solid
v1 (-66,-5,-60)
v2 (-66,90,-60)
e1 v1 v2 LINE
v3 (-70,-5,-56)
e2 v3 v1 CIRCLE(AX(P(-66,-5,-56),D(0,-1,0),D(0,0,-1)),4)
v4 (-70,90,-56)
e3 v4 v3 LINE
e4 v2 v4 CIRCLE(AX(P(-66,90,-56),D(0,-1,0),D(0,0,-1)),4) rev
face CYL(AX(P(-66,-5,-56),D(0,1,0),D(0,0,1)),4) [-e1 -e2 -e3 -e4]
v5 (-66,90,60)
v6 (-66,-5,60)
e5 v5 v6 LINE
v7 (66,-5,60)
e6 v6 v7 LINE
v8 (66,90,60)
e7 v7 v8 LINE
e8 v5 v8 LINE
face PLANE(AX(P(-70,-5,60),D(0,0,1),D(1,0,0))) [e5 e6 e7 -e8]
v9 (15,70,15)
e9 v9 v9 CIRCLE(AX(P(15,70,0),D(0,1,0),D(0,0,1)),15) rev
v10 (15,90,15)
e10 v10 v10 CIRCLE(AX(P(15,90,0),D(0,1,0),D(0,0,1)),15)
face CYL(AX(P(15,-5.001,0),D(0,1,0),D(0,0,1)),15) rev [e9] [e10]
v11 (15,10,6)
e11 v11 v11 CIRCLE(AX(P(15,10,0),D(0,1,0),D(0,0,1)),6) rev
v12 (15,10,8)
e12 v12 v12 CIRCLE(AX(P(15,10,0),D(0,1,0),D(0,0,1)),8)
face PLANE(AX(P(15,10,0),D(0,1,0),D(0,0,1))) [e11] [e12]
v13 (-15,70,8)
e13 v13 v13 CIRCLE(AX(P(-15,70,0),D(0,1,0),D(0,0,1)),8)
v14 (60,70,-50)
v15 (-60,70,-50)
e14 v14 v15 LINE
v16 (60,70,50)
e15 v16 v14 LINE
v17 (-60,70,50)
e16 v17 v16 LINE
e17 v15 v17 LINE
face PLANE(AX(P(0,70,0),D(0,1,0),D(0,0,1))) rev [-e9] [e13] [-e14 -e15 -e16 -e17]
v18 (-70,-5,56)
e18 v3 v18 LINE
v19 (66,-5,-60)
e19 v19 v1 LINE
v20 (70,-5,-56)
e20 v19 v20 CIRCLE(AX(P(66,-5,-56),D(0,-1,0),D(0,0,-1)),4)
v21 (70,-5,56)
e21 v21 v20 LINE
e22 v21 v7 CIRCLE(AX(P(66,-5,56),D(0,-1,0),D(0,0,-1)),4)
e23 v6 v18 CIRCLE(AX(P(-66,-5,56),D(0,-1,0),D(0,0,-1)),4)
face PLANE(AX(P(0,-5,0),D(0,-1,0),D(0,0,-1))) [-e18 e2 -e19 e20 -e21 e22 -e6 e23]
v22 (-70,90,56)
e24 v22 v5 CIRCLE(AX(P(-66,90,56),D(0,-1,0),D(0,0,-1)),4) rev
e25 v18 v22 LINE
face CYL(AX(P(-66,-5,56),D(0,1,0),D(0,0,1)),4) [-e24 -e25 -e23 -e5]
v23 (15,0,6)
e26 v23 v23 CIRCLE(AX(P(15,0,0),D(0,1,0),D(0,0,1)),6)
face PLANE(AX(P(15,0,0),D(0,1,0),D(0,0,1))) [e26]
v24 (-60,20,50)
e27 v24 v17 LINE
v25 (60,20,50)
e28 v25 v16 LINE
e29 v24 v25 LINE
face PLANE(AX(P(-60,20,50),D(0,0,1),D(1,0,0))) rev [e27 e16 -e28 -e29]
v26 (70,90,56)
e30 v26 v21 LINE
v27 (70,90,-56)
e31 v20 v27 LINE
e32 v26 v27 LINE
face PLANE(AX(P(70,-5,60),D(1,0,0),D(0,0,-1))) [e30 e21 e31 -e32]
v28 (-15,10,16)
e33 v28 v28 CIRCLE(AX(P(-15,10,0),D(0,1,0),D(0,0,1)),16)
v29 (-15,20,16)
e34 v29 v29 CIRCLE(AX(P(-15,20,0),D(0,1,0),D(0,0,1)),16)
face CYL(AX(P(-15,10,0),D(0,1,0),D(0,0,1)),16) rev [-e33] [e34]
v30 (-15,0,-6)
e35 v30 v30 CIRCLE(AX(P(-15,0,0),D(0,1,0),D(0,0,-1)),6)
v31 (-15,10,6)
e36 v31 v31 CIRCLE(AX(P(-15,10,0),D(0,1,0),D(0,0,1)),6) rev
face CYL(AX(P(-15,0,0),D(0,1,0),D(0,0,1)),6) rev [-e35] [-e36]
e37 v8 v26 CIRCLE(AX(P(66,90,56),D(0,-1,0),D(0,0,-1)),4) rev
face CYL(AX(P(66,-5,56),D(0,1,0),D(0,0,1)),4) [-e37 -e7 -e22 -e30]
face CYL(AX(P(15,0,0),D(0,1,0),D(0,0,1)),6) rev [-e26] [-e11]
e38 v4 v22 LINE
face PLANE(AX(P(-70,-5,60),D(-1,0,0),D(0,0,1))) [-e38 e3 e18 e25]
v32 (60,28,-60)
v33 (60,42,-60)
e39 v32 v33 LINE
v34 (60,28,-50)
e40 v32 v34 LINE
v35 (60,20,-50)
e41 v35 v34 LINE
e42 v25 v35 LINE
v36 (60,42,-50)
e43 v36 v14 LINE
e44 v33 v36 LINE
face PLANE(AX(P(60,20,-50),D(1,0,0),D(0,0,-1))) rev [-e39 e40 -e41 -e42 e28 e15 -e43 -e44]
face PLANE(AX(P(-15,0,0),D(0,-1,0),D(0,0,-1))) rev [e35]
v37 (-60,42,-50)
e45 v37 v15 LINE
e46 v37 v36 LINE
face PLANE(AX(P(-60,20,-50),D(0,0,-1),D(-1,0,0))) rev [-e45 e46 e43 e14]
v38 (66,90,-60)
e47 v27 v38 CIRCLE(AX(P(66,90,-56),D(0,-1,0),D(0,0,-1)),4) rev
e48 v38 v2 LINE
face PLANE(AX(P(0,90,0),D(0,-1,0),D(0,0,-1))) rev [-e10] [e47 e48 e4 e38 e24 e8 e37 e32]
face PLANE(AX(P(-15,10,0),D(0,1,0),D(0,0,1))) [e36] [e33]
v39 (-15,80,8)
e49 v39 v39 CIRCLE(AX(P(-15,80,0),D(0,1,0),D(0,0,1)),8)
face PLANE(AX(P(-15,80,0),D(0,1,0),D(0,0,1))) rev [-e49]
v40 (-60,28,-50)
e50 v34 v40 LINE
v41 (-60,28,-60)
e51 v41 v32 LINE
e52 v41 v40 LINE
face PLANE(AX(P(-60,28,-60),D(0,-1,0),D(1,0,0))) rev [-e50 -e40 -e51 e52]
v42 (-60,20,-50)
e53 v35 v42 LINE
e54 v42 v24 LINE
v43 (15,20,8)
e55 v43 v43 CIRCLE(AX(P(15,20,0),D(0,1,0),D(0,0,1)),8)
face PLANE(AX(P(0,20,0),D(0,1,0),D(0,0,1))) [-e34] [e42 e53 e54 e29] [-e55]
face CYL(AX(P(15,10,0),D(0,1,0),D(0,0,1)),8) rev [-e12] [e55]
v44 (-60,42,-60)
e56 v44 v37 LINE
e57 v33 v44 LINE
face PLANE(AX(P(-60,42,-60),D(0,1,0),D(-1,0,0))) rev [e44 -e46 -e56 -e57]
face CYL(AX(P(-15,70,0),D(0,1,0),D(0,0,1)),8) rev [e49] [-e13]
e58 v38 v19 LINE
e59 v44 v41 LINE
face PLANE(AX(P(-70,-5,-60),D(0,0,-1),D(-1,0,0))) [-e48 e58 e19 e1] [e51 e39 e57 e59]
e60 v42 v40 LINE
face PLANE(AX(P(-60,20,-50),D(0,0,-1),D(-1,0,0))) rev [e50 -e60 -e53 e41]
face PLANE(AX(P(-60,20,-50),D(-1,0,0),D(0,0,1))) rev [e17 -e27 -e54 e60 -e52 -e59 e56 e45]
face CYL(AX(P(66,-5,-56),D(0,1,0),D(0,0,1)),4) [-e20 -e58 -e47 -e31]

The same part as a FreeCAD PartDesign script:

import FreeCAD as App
import Part
import Sketcher
from FreeCAD import Vector


def edges_at(feature, points):
    """Names of the edges that pass closest to the given points."""
    edges = feature.Shape.Edges
    near = lambda p: min(range(len(edges)), key=lambda i: edges[i].distToShape(Part.Vertex(*p))[0])
    return sorted({f"Edge{near(p) + 1}" for p in points})

doc = App.newDocument("Part")
body = doc.addObject("PartDesign::Body", "Body")

# Sketch on XZ plane
sketch1 = doc.addObject("Sketcher::SketchObject", "Sketch")
body.addObject(sketch1)
sketch1.AttachmentSupport = (doc.XZ_Plane, [""])
sketch1.MapMode = "FlatFace"
sketch1.addGeometry(Part.LineSegment(Vector(-70, -60, 0), Vector(-70, 60, 0)), False)
sketch1.addGeometry(Part.LineSegment(Vector(-70, 60, 0), Vector(70, 60, 0)), False)
sketch1.addGeometry(Part.LineSegment(Vector(70, 60, 0), Vector(70, -60, 0)), False)
sketch1.addGeometry(Part.LineSegment(Vector(70, -60, 0), Vector(-70, -60, 0)), False)
sketch1.addConstraint(Sketcher.Constraint("Coincident", 0, 2, 1, 1))
sketch1.addConstraint(Sketcher.Constraint("Coincident", 1, 2, 2, 1))
sketch1.addConstraint(Sketcher.Constraint("Coincident", 2, 2, 3, 1))
sketch1.addConstraint(Sketcher.Constraint("Coincident", 3, 2, 0, 1))
sketch1.addConstraint(Sketcher.Constraint("Vertical", 0))
sketch1.addConstraint(Sketcher.Constraint("Horizontal", 1))
sketch1.addConstraint(Sketcher.Constraint("Vertical", 2))
sketch1.addConstraint(Sketcher.Constraint("Horizontal", 3))
sketch1.addConstraint(Sketcher.Constraint("Symmetric", 0, 2, 2, 2, -1, 1))
sketch1.addConstraint(Sketcher.Constraint("DistanceX", 1, 1, 1, 2, 140.0))
sketch1.addConstraint(Sketcher.Constraint("DistanceY", 0, 1, 0, 2, 120.0))
pad1 = doc.addObject("PartDesign::Pad", "Pad")
body.addObject(pad1)
pad1.Profile = sketch1
pad1.Type = "TwoLengths"
pad1.Length = 90
pad1.Length2 = 5
pad1.Reversed = True

# Sketch on XZ plane
sketch2 = doc.addObject("Sketcher::SketchObject", "Sketch001")
body.addObject(sketch2)
sketch2.AttachmentSupport = (doc.XZ_Plane, [""])
sketch2.MapMode = "FlatFace"
sketch2.AttachmentOffset = App.Placement(Vector(0, 0, -70), App.Rotation())
sketch2.addGeometry(Part.LineSegment(Vector(-60, -50, 0), Vector(-60, 50, 0)), False)
sketch2.addGeometry(Part.LineSegment(Vector(-60, 50, 0), Vector(60, 50, 0)), False)
sketch2.addGeometry(Part.LineSegment(Vector(60, 50, 0), Vector(60, -50, 0)), False)
sketch2.addGeometry(Part.LineSegment(Vector(60, -50, 0), Vector(-60, -50, 0)), False)
sketch2.addConstraint(Sketcher.Constraint("Coincident", 0, 2, 1, 1))
sketch2.addConstraint(Sketcher.Constraint("Coincident", 1, 2, 2, 1))
sketch2.addConstraint(Sketcher.Constraint("Coincident", 2, 2, 3, 1))
sketch2.addConstraint(Sketcher.Constraint("Coincident", 3, 2, 0, 1))
sketch2.addConstraint(Sketcher.Constraint("Vertical", 0))
sketch2.addConstraint(Sketcher.Constraint("Horizontal", 1))
sketch2.addConstraint(Sketcher.Constraint("Vertical", 2))
sketch2.addConstraint(Sketcher.Constraint("Horizontal", 3))
sketch2.addConstraint(Sketcher.Constraint("Symmetric", 0, 2, 2, 2, -1, 1))
sketch2.addConstraint(Sketcher.Constraint("DistanceX", 1, 1, 1, 2, 120.0))
sketch2.addConstraint(Sketcher.Constraint("DistanceY", 0, 1, 0, 2, 100.0))
pocket1 = doc.addObject("PartDesign::Pocket", "Pocket")
body.addObject(pocket1)
pocket1.Profile = sketch2
pocket1.Length = 50
pocket1.Reversed = True

# Sketch on XZ plane
sketch3 = doc.addObject("Sketcher::SketchObject", "Sketch002")
body.addObject(sketch3)
sketch3.AttachmentSupport = (doc.XZ_Plane, [""])
sketch3.MapMode = "FlatFace"
sketch3.AttachmentOffset = App.Placement(Vector(0, 0, -20), App.Rotation())
sketch3.addGeometry(Part.Circle(Vector(15, 0, 0), Vector(0, 0, 1), 6), False)
sketch3.addGeometry(Part.Circle(Vector(-15, 0, 0), Vector(0, 0, 1), 6), False)
sketch3.addConstraint(Sketcher.Constraint("Equal", 0, 1))
sketch3.addConstraint(Sketcher.Constraint("Symmetric", 0, 3, 1, 3, -1, 1))
sketch3.addConstraint(Sketcher.Constraint("PointOnObject", 0, 3, -1))
sketch3.addConstraint(Sketcher.Constraint("Diameter", 0, 12.0))
sketch3.addConstraint(Sketcher.Constraint("DistanceX", -1, 1, 0, 3, 15.0))
pocket2 = doc.addObject("PartDesign::Pocket", "Pocket001")
body.addObject(pocket2)
pocket2.Profile = sketch3
pocket2.Length = 20
pocket2.Reversed = True

# Sketch on XZ plane
sketch4 = doc.addObject("Sketcher::SketchObject", "Sketch003")
body.addObject(sketch4)
sketch4.AttachmentSupport = (doc.XZ_Plane, [""])
sketch4.MapMode = "FlatFace"
sketch4.AttachmentOffset = App.Placement(Vector(0, 0, -20), App.Rotation())
sketch4.addGeometry(Part.Circle(Vector(15, 0, 0), Vector(0, 0, 1), 8), False)
sketch4.addGeometry(Part.Circle(Vector(-15, 0, 0), Vector(0, 0, 1), 16), False)
sketch4.addConstraint(Sketcher.Constraint("Symmetric", 0, 3, 1, 3, -1, 1))
sketch4.addConstraint(Sketcher.Constraint("PointOnObject", 0, 3, -1))
sketch4.addConstraint(Sketcher.Constraint("Diameter", 0, 16.0))
sketch4.addConstraint(Sketcher.Constraint("Diameter", 1, 32.0))
sketch4.addConstraint(Sketcher.Constraint("DistanceX", -1, 1, 0, 3, 15.0))
pocket3 = doc.addObject("PartDesign::Pocket", "Pocket002")
body.addObject(pocket3)
pocket3.Profile = sketch4
pocket3.Length = 10
pocket3.Reversed = True

# Sketch on XY plane
sketch5 = doc.addObject("Sketcher::SketchObject", "Sketch004")
body.addObject(sketch5)
sketch5.AttachmentSupport = (doc.XY_Plane, [""])
sketch5.MapMode = "FlatFace"
sketch5.AttachmentOffset = App.Placement(Vector(0, 0, 50), App.Rotation())
sketch5.addGeometry(Part.LineSegment(Vector(-60, 42, 0), Vector(-60, 28, 0)), False)
sketch5.addGeometry(Part.LineSegment(Vector(-60, 28, 0), Vector(60, 28, 0)), False)
sketch5.addGeometry(Part.LineSegment(Vector(60, 28, 0), Vector(60, 42, 0)), False)
sketch5.addGeometry(Part.LineSegment(Vector(60, 42, 0), Vector(-60, 42, 0)), False)
sketch5.addConstraint(Sketcher.Constraint("Coincident", 0, 2, 1, 1))
sketch5.addConstraint(Sketcher.Constraint("Coincident", 1, 2, 2, 1))
sketch5.addConstraint(Sketcher.Constraint("Coincident", 2, 2, 3, 1))
sketch5.addConstraint(Sketcher.Constraint("Coincident", 3, 2, 0, 1))
sketch5.addConstraint(Sketcher.Constraint("Vertical", 0))
sketch5.addConstraint(Sketcher.Constraint("Horizontal", 1))
sketch5.addConstraint(Sketcher.Constraint("Vertical", 2))
sketch5.addConstraint(Sketcher.Constraint("Horizontal", 3))
sketch5.addConstraint(Sketcher.Constraint("DistanceX", 1, 1, 1, 2, 120.0))
sketch5.addConstraint(Sketcher.Constraint("DistanceY", 0, 2, 0, 1, 14.0))
sketch5.addConstraint(Sketcher.Constraint("DistanceX", 0, 2, -1, 1, 60.0))
sketch5.addConstraint(Sketcher.Constraint("DistanceY", -1, 1, 0, 2, 28.0))
pocket4 = doc.addObject("PartDesign::Pocket", "Pocket003")
body.addObject(pocket4)
pocket4.Profile = sketch5
pocket4.Type = "ThroughAll"

# Sketch on XZ plane
sketch6 = doc.addObject("Sketcher::SketchObject", "Sketch005")
body.addObject(sketch6)
sketch6.AttachmentSupport = (doc.XZ_Plane, [""])
sketch6.MapMode = "FlatFace"
sketch6.AttachmentOffset = App.Placement(Vector(0, 0, -80), App.Rotation())
sketch6.addGeometry(Part.Circle(Vector(-15, 0, 0), Vector(0, 0, 1), 8), False)
sketch6.addConstraint(Sketcher.Constraint("PointOnObject", 0, 3, -1))
sketch6.addConstraint(Sketcher.Constraint("Diameter", 0, 16.0))
sketch6.addConstraint(Sketcher.Constraint("DistanceX", 0, 3, -1, 1, 15.0))
pocket5 = doc.addObject("PartDesign::Pocket", "Pocket004")
body.addObject(pocket5)
pocket5.Profile = sketch6
pocket5.Length = 10
pocket5.Reversed = True

# Sketch on XZ plane
sketch7 = doc.addObject("Sketcher::SketchObject", "Sketch006")
body.addObject(sketch7)
sketch7.AttachmentSupport = (doc.XZ_Plane, [""])
sketch7.MapMode = "FlatFace"
sketch7.AttachmentOffset = App.Placement(Vector(0, 0, -90), App.Rotation())
sketch7.addGeometry(Part.Circle(Vector(15, 0, 0), Vector(0, 0, 1), 15), False)
sketch7.addConstraint(Sketcher.Constraint("PointOnObject", 0, 3, -1))
sketch7.addConstraint(Sketcher.Constraint("Diameter", 0, 30.0))
sketch7.addConstraint(Sketcher.Constraint("DistanceX", -1, 1, 0, 3, 15.0))
pocket6 = doc.addObject("PartDesign::Pocket", "Pocket005")
body.addObject(pocket6)
pocket6.Profile = sketch7
pocket6.Type = "UpToFirst"
pocket6.Reversed = True
doc.recompute()

fillet = doc.addObject("PartDesign::Fillet", "Fillet")
body.addObject(fillet)
fillet.Base = (pocket6, edges_at(pocket6, [
    (-70, 42.5, -60),
    (70, 42.5, -60),
    (70, 42.5, 60),
    (-70, 42.5, 60),
]))
fillet.Radius = 4

doc.recompute()
